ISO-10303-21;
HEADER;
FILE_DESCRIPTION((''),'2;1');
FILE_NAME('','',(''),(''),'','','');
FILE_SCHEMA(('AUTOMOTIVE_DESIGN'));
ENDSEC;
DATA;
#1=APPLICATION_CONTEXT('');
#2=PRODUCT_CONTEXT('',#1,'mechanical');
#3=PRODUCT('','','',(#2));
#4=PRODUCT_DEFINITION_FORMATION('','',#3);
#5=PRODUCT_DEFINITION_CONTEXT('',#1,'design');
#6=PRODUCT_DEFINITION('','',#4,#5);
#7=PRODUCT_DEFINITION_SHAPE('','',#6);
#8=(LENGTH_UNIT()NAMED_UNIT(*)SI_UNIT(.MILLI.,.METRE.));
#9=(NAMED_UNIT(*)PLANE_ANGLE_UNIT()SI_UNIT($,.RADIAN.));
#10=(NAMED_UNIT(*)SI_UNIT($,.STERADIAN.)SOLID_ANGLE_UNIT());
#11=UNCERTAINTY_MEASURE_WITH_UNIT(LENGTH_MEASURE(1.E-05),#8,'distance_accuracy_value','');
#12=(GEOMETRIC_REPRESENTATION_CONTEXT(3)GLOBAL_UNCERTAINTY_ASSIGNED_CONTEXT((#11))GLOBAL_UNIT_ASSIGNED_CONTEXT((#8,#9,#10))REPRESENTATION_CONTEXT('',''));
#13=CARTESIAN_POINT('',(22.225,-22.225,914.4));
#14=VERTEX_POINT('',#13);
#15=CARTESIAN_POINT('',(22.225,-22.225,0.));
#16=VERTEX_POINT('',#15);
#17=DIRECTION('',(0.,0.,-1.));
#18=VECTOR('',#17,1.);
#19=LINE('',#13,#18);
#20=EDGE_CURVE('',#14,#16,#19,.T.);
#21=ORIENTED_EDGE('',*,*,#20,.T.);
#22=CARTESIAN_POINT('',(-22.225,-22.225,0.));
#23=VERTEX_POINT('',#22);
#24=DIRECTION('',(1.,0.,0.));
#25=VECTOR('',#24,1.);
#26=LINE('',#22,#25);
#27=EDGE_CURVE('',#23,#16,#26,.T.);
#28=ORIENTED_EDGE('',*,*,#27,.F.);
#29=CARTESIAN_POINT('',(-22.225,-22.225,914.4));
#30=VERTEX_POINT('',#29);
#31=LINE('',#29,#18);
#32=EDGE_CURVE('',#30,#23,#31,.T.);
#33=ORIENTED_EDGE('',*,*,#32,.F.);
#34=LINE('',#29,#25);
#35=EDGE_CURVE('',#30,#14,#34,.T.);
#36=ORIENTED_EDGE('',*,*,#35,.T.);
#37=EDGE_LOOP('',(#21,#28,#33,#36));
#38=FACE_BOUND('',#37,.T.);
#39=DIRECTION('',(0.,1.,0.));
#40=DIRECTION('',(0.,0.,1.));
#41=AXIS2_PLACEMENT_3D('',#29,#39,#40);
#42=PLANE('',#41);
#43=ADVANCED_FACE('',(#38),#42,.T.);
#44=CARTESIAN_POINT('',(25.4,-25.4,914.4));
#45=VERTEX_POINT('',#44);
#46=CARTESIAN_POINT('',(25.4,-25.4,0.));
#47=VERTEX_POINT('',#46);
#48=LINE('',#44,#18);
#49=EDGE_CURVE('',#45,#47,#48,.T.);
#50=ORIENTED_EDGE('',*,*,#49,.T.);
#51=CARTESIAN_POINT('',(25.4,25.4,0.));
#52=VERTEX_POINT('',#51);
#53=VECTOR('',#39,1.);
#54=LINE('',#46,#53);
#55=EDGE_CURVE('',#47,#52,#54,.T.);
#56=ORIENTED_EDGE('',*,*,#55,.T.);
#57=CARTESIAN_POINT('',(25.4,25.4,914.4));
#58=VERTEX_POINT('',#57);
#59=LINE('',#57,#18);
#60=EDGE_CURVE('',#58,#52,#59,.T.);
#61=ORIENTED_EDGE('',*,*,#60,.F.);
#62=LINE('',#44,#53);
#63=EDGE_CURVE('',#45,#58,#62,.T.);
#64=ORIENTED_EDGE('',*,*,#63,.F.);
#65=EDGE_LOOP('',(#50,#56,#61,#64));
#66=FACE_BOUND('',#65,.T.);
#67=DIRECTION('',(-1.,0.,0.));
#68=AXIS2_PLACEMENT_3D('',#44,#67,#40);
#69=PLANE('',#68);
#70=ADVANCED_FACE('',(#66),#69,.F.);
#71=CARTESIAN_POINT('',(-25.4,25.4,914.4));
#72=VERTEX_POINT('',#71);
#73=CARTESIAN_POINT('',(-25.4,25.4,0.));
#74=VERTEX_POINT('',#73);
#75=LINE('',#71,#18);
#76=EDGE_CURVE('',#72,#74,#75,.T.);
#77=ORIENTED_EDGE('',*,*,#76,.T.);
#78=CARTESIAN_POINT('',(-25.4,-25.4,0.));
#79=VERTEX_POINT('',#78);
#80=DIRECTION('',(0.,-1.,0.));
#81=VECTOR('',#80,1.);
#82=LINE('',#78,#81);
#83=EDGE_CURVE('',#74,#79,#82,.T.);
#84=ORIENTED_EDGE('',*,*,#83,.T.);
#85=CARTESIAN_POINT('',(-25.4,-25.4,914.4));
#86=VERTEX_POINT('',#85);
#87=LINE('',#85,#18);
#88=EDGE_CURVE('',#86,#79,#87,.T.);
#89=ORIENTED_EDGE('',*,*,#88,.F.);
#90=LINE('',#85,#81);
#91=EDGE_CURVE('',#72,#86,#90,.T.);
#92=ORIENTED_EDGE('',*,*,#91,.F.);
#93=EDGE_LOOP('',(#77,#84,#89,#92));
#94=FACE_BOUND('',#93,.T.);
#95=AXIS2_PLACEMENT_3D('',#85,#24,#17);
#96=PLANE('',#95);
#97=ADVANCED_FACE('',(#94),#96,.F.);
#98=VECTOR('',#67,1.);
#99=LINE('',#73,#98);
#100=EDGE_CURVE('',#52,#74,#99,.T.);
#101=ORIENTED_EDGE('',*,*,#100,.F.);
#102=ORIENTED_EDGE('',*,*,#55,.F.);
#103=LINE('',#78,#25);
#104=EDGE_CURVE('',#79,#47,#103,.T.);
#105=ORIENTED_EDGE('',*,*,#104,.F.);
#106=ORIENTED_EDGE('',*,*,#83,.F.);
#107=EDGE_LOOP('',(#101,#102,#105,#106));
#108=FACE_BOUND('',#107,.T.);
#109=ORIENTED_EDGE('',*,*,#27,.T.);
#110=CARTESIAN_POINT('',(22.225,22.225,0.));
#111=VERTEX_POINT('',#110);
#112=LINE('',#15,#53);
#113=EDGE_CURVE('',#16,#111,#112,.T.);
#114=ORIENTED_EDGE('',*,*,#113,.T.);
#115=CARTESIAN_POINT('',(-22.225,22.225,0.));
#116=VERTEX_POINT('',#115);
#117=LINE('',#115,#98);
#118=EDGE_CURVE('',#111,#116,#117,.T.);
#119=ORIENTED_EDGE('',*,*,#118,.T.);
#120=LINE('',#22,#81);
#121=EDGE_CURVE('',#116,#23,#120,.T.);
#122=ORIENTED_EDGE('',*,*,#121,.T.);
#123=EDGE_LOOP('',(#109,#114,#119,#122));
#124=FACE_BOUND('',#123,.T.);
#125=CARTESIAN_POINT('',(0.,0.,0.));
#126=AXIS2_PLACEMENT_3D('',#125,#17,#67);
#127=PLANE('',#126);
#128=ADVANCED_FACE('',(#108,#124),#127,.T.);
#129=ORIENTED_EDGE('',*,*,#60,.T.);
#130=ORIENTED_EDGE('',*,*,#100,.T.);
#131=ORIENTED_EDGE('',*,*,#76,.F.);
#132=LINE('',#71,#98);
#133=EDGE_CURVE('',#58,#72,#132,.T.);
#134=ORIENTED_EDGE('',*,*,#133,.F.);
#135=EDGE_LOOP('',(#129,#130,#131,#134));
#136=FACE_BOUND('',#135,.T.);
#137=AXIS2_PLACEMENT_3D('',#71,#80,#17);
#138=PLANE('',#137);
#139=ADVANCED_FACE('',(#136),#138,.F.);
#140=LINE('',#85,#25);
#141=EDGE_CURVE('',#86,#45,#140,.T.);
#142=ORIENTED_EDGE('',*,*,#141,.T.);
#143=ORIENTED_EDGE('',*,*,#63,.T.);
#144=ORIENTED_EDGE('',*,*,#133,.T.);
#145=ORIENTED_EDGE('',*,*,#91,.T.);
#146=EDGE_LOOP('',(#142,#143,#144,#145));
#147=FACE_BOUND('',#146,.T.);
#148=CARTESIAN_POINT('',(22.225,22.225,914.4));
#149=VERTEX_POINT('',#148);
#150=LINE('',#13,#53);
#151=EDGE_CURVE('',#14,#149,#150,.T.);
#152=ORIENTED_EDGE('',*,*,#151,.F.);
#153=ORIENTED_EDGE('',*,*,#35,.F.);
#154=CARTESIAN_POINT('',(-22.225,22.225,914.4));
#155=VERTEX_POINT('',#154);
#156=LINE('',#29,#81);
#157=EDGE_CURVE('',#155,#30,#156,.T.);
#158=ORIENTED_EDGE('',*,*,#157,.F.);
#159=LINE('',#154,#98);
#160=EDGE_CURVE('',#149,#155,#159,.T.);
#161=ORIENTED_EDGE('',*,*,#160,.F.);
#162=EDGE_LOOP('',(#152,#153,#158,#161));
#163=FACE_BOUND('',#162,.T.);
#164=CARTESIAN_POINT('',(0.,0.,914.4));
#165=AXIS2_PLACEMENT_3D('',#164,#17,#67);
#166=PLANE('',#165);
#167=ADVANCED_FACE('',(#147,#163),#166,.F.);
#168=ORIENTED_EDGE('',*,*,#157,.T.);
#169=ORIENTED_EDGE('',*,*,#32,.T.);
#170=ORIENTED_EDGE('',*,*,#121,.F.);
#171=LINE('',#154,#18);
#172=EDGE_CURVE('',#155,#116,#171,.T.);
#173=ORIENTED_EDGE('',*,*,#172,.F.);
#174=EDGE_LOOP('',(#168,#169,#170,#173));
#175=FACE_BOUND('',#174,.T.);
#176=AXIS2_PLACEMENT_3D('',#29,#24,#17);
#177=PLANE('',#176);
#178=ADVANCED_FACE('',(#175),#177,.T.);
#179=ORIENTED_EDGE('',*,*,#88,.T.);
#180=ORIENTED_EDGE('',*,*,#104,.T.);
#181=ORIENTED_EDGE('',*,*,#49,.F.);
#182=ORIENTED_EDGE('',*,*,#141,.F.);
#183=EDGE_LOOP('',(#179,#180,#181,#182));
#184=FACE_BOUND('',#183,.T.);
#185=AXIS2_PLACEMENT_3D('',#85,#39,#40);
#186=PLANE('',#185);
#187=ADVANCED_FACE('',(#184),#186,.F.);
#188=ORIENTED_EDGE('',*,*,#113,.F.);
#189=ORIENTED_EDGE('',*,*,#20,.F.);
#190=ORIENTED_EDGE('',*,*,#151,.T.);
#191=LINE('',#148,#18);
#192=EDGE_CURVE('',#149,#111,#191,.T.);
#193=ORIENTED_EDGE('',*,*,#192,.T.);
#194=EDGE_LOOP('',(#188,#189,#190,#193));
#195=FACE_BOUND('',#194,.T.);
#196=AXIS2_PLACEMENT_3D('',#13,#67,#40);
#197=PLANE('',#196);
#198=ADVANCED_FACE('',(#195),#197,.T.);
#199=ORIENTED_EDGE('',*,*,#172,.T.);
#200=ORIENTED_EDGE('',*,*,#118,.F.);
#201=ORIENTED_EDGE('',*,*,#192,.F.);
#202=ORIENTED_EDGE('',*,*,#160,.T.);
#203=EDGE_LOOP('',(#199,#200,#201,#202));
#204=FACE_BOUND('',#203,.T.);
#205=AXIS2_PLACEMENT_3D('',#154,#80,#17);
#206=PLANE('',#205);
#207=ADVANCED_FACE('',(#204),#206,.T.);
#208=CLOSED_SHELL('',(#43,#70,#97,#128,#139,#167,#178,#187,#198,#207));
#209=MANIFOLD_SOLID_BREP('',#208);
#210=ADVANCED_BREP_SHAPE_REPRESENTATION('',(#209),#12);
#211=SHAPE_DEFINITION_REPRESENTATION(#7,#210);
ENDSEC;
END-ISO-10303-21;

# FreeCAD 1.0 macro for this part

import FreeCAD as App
import Part
import Sketcher

V = App.Vector
Q = App.Units.Quantity

doc = App.newDocument("Part")
params = doc.addObject("Spreadsheet::Sheet", "Params")
for row, (alias, value) in enumerate([
    ("sketch1_width", "2 in"),
    ("sketch1_width2", "1.75 in"),
    ("pad1_length", "36 in"),
], start=1):
    params.set(f"A{row}", alias)
    params.set(f"B{row}", "=" + value)
    params.setAlias(f"B{row}", alias)

body = doc.addObject("PartDesign::Body", "Body")

sketch1 = body.newObject("Sketcher::SketchObject", "Sketch")
sketch1.AttachmentSupport = (doc.getObject("XY_Plane"), [""])
sketch1.MapMode = "FlatFace"
sketch1.addGeometry([
    Part.LineSegment(V(-25, 25, 0), V(-25, -25, 0)),
    Part.LineSegment(V(-25, -25, 0), V(25, -25, 0)),
    Part.LineSegment(V(25, -25, 0), V(25, 25, 0)),
    Part.LineSegment(V(25, 25, 0), V(-25, 25, 0)),
    Part.LineSegment(V(22, -22, 0), V(-22, -22, 0)),
    Part.LineSegment(V(-22, -22, 0), V(-22, 22, 0)),
    Part.LineSegment(V(-22, 22, 0), V(22, 22, 0)),
    Part.LineSegment(V(22, 22, 0), V(22, -22, 0)),
], False)
sketch1.addConstraint([
    Sketcher.Constraint("Coincident", 0, 2, 1, 1),
    Sketcher.Constraint("Coincident", 1, 2, 2, 1),
    Sketcher.Constraint("Coincident", 2, 2, 3, 1),
    Sketcher.Constraint("Coincident", 3, 2, 0, 1),
    Sketcher.Constraint("Coincident", 4, 2, 5, 1),
    Sketcher.Constraint("Coincident", 5, 2, 6, 1),
    Sketcher.Constraint("Coincident", 6, 2, 7, 1),
    Sketcher.Constraint("Coincident", 7, 2, 4, 1),
    Sketcher.Constraint("Vertical", 0),
    Sketcher.Constraint("Horizontal", 1),
    Sketcher.Constraint("Vertical", 2),
    Sketcher.Constraint("Horizontal", 3),
    Sketcher.Constraint("Horizontal", 4),
    Sketcher.Constraint("Vertical", 5),
    Sketcher.Constraint("Horizontal", 6),
    Sketcher.Constraint("Vertical", 7),
    Sketcher.Constraint("Symmetric", 0, 2, 2, 2, -1, 1),
    Sketcher.Constraint("Symmetric", 4, 2, 6, 2, -1, 1),
    Sketcher.Constraint("Equal", 3, 0),
    Sketcher.Constraint("Equal", 6, 5),
    Sketcher.Constraint("DistanceX", 1, 1, 1, 2, Q("2 in")),
    Sketcher.Constraint("DistanceX", 4, 2, 4, 1, Q("1.75 in")),
])
sketch1.setExpression("Constraints[20]", "Params.sketch1_width")
sketch1.setExpression("Constraints[21]", "Params.sketch1_width2")
pad1 = body.newObject("PartDesign::Pad", "Pad")
pad1.Profile = sketch1
pad1.setExpression("Length", "Params.pad1_length")

doc.recompute()
